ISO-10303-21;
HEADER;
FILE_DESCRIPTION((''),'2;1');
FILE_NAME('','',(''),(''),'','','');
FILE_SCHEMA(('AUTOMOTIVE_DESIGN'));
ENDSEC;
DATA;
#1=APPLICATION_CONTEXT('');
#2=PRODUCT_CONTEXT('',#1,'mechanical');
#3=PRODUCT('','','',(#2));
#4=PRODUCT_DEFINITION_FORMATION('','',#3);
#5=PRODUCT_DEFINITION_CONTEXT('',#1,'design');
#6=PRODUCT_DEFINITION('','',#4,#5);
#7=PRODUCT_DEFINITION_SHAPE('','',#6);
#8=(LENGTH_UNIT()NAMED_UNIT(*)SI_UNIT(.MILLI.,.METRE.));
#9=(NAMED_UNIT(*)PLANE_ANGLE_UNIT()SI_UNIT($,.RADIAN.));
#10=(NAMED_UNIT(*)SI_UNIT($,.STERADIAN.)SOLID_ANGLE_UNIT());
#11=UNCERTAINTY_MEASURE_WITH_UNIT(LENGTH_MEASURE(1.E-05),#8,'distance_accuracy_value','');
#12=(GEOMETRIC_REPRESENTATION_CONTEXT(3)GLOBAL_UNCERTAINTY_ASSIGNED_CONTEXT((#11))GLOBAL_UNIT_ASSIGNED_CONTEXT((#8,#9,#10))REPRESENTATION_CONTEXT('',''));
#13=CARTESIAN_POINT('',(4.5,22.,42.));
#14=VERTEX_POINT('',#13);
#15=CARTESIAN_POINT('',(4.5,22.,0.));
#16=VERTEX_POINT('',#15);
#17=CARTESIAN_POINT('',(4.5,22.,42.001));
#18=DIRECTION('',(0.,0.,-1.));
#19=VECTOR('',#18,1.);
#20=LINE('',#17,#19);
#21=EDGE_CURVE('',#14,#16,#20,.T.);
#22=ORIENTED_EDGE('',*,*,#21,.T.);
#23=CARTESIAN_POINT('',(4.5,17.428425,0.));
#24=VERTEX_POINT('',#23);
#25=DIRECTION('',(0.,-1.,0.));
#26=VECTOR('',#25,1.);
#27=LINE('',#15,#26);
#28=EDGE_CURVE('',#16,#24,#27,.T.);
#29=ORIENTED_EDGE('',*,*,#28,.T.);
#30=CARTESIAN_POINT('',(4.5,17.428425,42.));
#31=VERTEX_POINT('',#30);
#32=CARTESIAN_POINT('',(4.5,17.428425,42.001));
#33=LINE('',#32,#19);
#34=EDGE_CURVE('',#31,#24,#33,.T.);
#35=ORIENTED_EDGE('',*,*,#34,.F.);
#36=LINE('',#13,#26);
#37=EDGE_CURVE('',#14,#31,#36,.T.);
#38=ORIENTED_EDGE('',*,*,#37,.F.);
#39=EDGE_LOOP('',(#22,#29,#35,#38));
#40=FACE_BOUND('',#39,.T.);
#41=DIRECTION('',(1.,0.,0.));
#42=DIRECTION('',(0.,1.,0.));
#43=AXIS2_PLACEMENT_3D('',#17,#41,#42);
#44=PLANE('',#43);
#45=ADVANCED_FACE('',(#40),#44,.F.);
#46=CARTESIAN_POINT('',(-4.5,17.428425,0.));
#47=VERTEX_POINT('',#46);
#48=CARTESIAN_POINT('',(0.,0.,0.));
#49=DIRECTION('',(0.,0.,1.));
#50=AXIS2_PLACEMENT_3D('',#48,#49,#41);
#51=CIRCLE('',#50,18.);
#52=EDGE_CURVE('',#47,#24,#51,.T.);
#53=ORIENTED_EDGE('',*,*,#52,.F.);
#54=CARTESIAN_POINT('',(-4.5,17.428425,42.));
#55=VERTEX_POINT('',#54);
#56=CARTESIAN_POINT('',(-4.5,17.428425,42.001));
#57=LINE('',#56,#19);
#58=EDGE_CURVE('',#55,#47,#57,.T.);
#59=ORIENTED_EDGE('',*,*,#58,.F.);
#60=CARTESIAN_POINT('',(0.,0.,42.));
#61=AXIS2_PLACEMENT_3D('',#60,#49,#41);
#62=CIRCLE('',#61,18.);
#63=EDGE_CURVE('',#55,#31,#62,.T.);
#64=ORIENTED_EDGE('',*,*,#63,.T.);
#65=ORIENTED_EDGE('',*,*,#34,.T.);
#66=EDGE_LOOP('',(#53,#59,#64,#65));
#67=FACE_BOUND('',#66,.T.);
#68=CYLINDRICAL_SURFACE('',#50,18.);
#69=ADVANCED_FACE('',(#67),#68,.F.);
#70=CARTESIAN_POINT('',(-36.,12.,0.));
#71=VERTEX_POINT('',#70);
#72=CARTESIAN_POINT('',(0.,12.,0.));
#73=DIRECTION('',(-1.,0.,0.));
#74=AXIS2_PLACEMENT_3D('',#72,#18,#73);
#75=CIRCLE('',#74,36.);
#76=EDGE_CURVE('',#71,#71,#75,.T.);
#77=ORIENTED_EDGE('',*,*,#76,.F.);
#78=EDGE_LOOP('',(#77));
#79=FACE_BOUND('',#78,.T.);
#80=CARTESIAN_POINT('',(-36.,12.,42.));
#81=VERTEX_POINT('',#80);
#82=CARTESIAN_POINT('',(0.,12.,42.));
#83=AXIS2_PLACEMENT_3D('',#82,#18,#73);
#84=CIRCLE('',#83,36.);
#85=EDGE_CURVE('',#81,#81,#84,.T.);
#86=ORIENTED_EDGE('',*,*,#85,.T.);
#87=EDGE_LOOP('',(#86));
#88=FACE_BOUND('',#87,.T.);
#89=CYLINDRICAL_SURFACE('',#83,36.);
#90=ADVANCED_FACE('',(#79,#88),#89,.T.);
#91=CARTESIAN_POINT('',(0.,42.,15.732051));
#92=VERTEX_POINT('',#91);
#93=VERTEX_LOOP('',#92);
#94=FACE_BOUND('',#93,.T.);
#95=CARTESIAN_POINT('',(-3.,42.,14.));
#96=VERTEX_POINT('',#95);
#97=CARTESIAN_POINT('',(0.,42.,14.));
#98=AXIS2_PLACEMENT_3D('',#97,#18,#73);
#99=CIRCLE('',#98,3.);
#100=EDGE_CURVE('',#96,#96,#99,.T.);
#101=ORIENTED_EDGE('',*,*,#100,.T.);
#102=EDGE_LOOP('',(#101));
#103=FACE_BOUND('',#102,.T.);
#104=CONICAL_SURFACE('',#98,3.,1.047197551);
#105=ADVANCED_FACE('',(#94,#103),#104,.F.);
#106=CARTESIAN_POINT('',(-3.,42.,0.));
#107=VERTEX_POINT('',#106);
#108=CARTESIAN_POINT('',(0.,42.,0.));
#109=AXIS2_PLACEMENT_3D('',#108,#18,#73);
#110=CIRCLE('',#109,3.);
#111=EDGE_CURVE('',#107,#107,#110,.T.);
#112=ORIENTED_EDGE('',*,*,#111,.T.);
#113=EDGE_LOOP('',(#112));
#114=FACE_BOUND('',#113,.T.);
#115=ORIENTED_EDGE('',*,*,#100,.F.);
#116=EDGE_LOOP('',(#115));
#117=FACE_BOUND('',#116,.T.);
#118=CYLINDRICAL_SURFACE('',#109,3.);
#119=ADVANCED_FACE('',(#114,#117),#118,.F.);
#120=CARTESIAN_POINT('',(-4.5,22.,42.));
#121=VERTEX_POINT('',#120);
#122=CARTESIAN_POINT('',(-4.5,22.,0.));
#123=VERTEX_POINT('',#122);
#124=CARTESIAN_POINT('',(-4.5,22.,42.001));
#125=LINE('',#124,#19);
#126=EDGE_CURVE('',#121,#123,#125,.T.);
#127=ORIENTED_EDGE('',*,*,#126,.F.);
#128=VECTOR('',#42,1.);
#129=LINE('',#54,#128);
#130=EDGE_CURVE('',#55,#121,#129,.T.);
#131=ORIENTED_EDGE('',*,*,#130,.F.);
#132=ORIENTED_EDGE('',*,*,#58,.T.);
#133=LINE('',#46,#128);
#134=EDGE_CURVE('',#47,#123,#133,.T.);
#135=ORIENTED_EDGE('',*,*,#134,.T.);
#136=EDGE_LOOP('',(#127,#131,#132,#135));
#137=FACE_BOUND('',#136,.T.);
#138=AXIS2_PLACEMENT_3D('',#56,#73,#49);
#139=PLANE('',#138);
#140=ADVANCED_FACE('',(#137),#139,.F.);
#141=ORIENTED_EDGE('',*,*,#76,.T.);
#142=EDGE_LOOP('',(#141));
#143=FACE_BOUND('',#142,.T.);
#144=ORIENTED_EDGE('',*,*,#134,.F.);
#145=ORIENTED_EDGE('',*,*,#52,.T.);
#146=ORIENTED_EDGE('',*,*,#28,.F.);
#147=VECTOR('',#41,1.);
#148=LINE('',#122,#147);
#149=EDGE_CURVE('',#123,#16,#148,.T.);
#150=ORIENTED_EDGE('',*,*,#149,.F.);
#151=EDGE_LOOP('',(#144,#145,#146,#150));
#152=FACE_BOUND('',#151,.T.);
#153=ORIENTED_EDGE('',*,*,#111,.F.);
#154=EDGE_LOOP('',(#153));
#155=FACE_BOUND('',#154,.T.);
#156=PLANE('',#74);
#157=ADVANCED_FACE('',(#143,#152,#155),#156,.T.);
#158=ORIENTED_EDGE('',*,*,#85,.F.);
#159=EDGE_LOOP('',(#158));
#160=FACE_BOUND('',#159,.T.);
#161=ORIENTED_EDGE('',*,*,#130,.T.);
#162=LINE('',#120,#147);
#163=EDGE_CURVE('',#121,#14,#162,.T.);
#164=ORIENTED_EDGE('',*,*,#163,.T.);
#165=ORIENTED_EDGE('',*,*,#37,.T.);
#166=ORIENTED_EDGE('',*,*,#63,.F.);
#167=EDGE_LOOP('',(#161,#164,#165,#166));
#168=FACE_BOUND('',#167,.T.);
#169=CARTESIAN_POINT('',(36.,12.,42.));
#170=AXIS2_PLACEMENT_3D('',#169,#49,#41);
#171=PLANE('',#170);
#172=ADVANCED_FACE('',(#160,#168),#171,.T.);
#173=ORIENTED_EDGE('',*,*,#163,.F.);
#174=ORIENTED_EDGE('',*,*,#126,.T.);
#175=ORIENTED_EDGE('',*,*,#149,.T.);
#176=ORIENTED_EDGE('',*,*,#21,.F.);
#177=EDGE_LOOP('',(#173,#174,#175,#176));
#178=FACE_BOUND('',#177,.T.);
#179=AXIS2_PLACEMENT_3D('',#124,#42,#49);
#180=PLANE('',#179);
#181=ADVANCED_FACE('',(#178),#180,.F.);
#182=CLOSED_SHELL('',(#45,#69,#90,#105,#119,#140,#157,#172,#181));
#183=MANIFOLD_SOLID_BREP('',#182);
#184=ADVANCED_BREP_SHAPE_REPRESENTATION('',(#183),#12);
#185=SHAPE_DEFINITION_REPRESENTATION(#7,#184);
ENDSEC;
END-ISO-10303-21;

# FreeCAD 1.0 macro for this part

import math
import FreeCAD as App
import Part
import Sketcher
from FreeCAD import Vector
Q = App.Units.Quantity

doc = App.newDocument("Part")
params = doc.addObject("Spreadsheet::Sheet", "Params")
for row, (alias, value) in enumerate([
    ("sketch1_width", "36 mm"),
    ("sketch1_height", "42 mm"),
    ("revolution_angle", "360 deg"),
    ("sketch2_radius", "18 mm"),
    ("sketch2_width", "9 mm"),
    ("sketch3_width", "18 mm"),
    ("sketch3_height", "42 mm"),
    ("groove_angle", "360 deg"),
    ("sketch4_diameter", "6 mm"),
    ("hole_diameter", "6 mm"),
    ("hole_depth", "14 mm"),
], start=1):
    params.set(f"A{row}", alias)
    params.set(f"B{row}", "=" + value)
    params.setAlias(f"B{row}", alias)

body = doc.addObject("PartDesign::Body", "Body")

# Sketch on XZ plane
sketch1 = body.newObject("Sketcher::SketchObject", "Sketch")
sketch1.AttachmentSupport = (doc.getObject("XZ_Plane"), [""])
sketch1.MapMode = "FlatFace"
sketch1.AttachmentOffset = App.Placement(Vector(0, 0, -12), App.Rotation())
sketch1.addGeometry([
    Part.LineSegment(Vector(0, 42, 0), Vector(0, 0, 0)),
    Part.LineSegment(Vector(0, 0, 0), Vector(36, 0, 0)),
    Part.LineSegment(Vector(36, 0, 0), Vector(36, 42, 0)),
    Part.LineSegment(Vector(36, 42, 0), Vector(0, 42, 0)),
], False)
sketch1.addConstraint([
    Sketcher.Constraint("Coincident", 0, 2, 1, 1),
    Sketcher.Constraint("Coincident", 1, 2, 2, 1),
    Sketcher.Constraint("Coincident", 2, 2, 3, 1),
    Sketcher.Constraint("Coincident", 3, 2, 0, 1),
    Sketcher.Constraint("Vertical", 0),
    Sketcher.Constraint("Horizontal", 1),
    Sketcher.Constraint("Vertical", 2),
    Sketcher.Constraint("Horizontal", 3),
    Sketcher.Constraint("Coincident", 0, 2, -1, 1),
    Sketcher.Constraint("DistanceX", 1, 1, 1, 2, Q("36 mm")),
    Sketcher.Constraint("DistanceY", 0, 2, 0, 1, Q("42 mm")),
])
sketch1.setExpression("Constraints[9]", "Params.sketch1_width")
sketch1.setExpression("Constraints[10]", "Params.sketch1_height")
revolution = body.newObject("PartDesign::Revolution", "Revolution")
revolution.Profile = sketch1
revolution.ReferenceAxis = (sketch1, ["V_Axis"])
revolution.setExpression("Angle", "Params.revolution_angle")

# Sketch on XY plane
sketch2 = body.newObject("Sketcher::SketchObject", "Sketch001")
sketch2.AttachmentSupport = (doc.getObject("XY_Plane"), [""])
sketch2.MapMode = "FlatFace"
sketch2.addGeometry([
    Part.LineSegment(Vector(-4.5, 22, 0), Vector(4.5, 22, 0)),
    Part.LineSegment(Vector(4.5, 22, 0), Vector(4.5, 17.428425, 0)),
    Part.ArcOfCircle(Part.Circle(Vector(0, 0, 0), Vector(0, 0, 1), 18), math.radians(75.522488), math.radians(104.477512)),
    Part.LineSegment(Vector(-4.5, 17.428425, 0), Vector(-4.5, 22, 0)),
], False)
sketch2.addConstraint([
    Sketcher.Constraint("Coincident", 0, 2, 1, 1),
    Sketcher.Constraint("Coincident", 1, 2, 2, 1),
    Sketcher.Constraint("Coincident", 2, 2, 3, 1),
    Sketcher.Constraint("Coincident", 3, 2, 0, 1),
    Sketcher.Constraint("Horizontal", 0),
    Sketcher.Constraint("Vertical", 1),
    Sketcher.Constraint("Vertical", 3),
    Sketcher.Constraint("Coincident", 2, 3, -1, 1),
    Sketcher.Constraint("Horizontal", 1, 2, 2, 2),
    Sketcher.Constraint("Radius", 2, Q("18 mm")),
    Sketcher.Constraint("DistanceX", 0, 1, 0, 2, Q("9 mm")),
    Sketcher.Constraint("DistanceY", -1, 1, 0, 2, Q("22 mm")),
])
sketch2.setExpression("Constraints[9]", "Params.sketch2_radius")
sketch2.setExpression("Constraints[10]", "Params.sketch2_width")
pocket1 = body.newObject("PartDesign::Pocket", "Pocket")
pocket1.Profile = sketch2
pocket1.Type = "UpToFirst"
pocket1.Reversed = True

# Sketch on XZ plane
sketch3 = body.newObject("Sketcher::SketchObject", "Sketch002")
sketch3.AttachmentSupport = (doc.getObject("XZ_Plane"), [""])
sketch3.MapMode = "FlatFace"
sketch3.addGeometry([
    Part.LineSegment(Vector(0, 0, 0), Vector(0, 42, 0)),
    Part.LineSegment(Vector(0, 42, 0), Vector(18, 42, 0)),
    Part.LineSegment(Vector(18, 42, 0), Vector(18, 0, 0)),
    Part.LineSegment(Vector(18, 0, 0), Vector(0, 0, 0)),
], False)
sketch3.addConstraint([
    Sketcher.Constraint("Coincident", 0, 2, 1, 1),
    Sketcher.Constraint("Coincident", 1, 2, 2, 1),
    Sketcher.Constraint("Coincident", 2, 2, 3, 1),
    Sketcher.Constraint("Coincident", 3, 2, 0, 1),
    Sketcher.Constraint("Vertical", 0),
    Sketcher.Constraint("Horizontal", 1),
    Sketcher.Constraint("Vertical", 2),
    Sketcher.Constraint("Horizontal", 3),
    Sketcher.Constraint("Coincident", 3, 2, -1, 1),
    Sketcher.Constraint("DistanceX", 1, 1, 1, 2, Q("18 mm")),
    Sketcher.Constraint("DistanceY", 0, 1, 0, 2, Q("42 mm")),
])
sketch3.setExpression("Constraints[9]", "Params.sketch3_width")
sketch3.setExpression("Constraints[10]", "Params.sketch3_height")
groove = body.newObject("PartDesign::Groove", "Groove")
groove.Profile = sketch3
groove.ReferenceAxis = (sketch3, ["V_Axis"])
groove.setExpression("Angle", "Params.groove_angle")

# Sketch on XY plane
sketch4 = body.newObject("Sketcher::SketchObject", "Sketch003")
sketch4.AttachmentSupport = (doc.getObject("XY_Plane"), [""])
sketch4.MapMode = "FlatFace"
sketch4.addGeometry(Part.Circle(Vector(0, 42, 0), Vector(0, 0, 1), 3), False)
sketch4.addConstraint([
    Sketcher.Constraint("PointOnObject", 0, 3, -2),
    Sketcher.Constraint("Diameter", 0, Q("6 mm")),
    Sketcher.Constraint("DistanceY", -1, 1, 0, 3, Q("42 mm")),
])
sketch4.setExpression("Constraints[1]", "Params.sketch4_diameter")
doc.recompute()
hole = body.newObject("PartDesign::Hole", "Hole")
hole.Profile = sketch4
hole.ThreadType = "None"
hole.setExpression("Diameter", "Params.hole_diameter")
hole.DepthType = "Dimension"
hole.setExpression("Depth", "Params.hole_depth")
hole.DrillPoint = "Angled"
hole.DrillPointAngle = 120
hole.Reversed = True

doc.recompute()
